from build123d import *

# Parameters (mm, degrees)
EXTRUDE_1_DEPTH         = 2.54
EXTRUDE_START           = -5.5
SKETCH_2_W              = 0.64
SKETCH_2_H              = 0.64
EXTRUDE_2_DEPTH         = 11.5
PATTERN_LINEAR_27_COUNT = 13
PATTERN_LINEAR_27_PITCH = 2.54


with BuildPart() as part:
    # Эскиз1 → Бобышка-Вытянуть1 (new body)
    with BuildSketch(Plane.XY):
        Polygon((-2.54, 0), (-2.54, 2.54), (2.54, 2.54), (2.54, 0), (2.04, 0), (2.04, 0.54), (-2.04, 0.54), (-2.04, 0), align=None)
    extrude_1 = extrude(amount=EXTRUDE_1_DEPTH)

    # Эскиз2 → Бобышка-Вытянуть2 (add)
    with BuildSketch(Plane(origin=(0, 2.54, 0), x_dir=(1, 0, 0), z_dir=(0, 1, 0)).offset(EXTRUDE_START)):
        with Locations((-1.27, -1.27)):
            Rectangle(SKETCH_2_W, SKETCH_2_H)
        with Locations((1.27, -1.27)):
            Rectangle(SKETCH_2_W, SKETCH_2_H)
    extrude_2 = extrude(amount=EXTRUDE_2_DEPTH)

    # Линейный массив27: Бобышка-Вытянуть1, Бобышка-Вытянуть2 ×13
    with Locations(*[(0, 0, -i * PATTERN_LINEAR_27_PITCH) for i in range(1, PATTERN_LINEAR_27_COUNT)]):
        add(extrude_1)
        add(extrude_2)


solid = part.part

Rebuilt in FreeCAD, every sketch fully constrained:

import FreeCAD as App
import Part
import Sketcher
from FreeCAD import Vector

doc = App.newDocument("Part")
body = doc.addObject("PartDesign::Body", "Body")

# Sketch on XY plane
sketch1 = doc.addObject("Sketcher::SketchObject", "Sketch")
body.addObject(sketch1)
sketch1.AttachmentSupport = (doc.XY_Plane, [""])
sketch1.MapMode = "FlatFace"
sketch1.addGeometry([
    Part.LineSegment(Vector(-2.5, 2.5, 0), Vector(-2.5, 0, 0)),  # 0
    Part.LineSegment(Vector(-2.5, 0, 0), Vector(-2, 0, 0)),  # 1
    Part.LineSegment(Vector(-2, 0, 0), Vector(-2, 0.5, 0)),  # 2
    Part.LineSegment(Vector(-2, 0.5, 0), Vector(2, 0.5, 0)),  # 3
    Part.LineSegment(Vector(2, 0.5, 0), Vector(2, 0, 0)),  # 4
    Part.LineSegment(Vector(2, 0, 0), Vector(2.5, 0, 0)),  # 5
    Part.LineSegment(Vector(2.5, 0, 0), Vector(2.5, 2.5, 0)),  # 6
    Part.LineSegment(Vector(2.5, 2.5, 0), Vector(-2.5, 2.5, 0)),  # 7
], False)
sketch1.addConstraint([
    Sketcher.Constraint("Coincident", 0, 2, 1, 1),
    Sketcher.Constraint("Coincident", 1, 2, 2, 1),
    Sketcher.Constraint("Coincident", 2, 2, 3, 1),
    Sketcher.Constraint("Coincident", 3, 2, 4, 1),
    Sketcher.Constraint("Coincident", 4, 2, 5, 1),
    Sketcher.Constraint("Coincident", 5, 2, 6, 1),
    Sketcher.Constraint("Coincident", 6, 2, 7, 1),
    Sketcher.Constraint("Coincident", 7, 2, 0, 1),
    Sketcher.Constraint("Vertical", 0),
    Sketcher.Constraint("Horizontal", 1),
    Sketcher.Constraint("Vertical", 2),
    Sketcher.Constraint("Horizontal", 3),
    Sketcher.Constraint("Vertical", 4),
    Sketcher.Constraint("Horizontal", 5),
    Sketcher.Constraint("Vertical", 6),
    Sketcher.Constraint("Horizontal", 7),
    Sketcher.Constraint("Symmetric", 1, 2, 4, 2, -1, 1),
    Sketcher.Constraint("Symmetric", 0, 2, 5, 2, -2),
    Sketcher.Constraint("DistanceX", 1, 1, 1, 2, 0.5),
    Sketcher.Constraint("DistanceY", 3, 2, 6, 2, 2.0),
    Sketcher.Constraint("DistanceX", 3, 1, 3, 2, 4.08),
    Sketcher.Constraint("DistanceY", 0, 2, 0, 1, 2.54),
])
pad1 = doc.addObject("PartDesign::Pad", "Pad")
body.addObject(pad1)
pad1.Profile = sketch1
pad1.Length = 2.54

# Sketch on XZ plane
sketch2 = doc.addObject("Sketcher::SketchObject", "Sketch001")
body.addObject(sketch2)
sketch2.AttachmentSupport = (doc.XZ_Plane, [""])
sketch2.MapMode = "FlatFace"
sketch2.AttachmentOffset = App.Placement(Vector(0, 0, 2.96), App.Rotation())
sketch2.addGeometry([
    Part.LineSegment(Vector(-1.6, 0.9, 0), Vector(-1.6, 1.6, 0)),  # 0
    Part.LineSegment(Vector(-1.6, 1.6, 0), Vector(-0.9, 1.6, 0)),  # 1
    Part.LineSegment(Vector(-0.9, 1.6, 0), Vector(-0.9, 0.9, 0)),  # 2
    Part.LineSegment(Vector(-0.9, 0.9, 0), Vector(-1.6, 0.9, 0)),  # 3
    Part.LineSegment(Vector(0.9, 0.9, 0), Vector(0.9, 1.6, 0)),  # 4
    Part.LineSegment(Vector(0.9, 1.6, 0), Vector(1.6, 1.6, 0)),  # 5
    Part.LineSegment(Vector(1.6, 1.6, 0), Vector(1.6, 0.9, 0)),  # 6
    Part.LineSegment(Vector(1.6, 0.9, 0), Vector(0.9, 0.9, 0)),  # 7
], False)
sketch2.addConstraint([
    Sketcher.Constraint("Coincident", 0, 2, 1, 1),
    Sketcher.Constraint("Coincident", 1, 2, 2, 1),
    Sketcher.Constraint("Coincident", 2, 2, 3, 1),
    Sketcher.Constraint("Coincident", 3, 2, 0, 1),
    Sketcher.Constraint("Coincident", 4, 2, 5, 1),
    Sketcher.Constraint("Coincident", 5, 2, 6, 1),
    Sketcher.Constraint("Coincident", 6, 2, 7, 1),
    Sketcher.Constraint("Coincident", 7, 2, 4, 1),
    Sketcher.Constraint("Vertical", 0),
    Sketcher.Constraint("Horizontal", 1),
    Sketcher.Constraint("Vertical", 2),
    Sketcher.Constraint("Horizontal", 3),
    Sketcher.Constraint("Vertical", 4),
    Sketcher.Constraint("Horizontal", 5),
    Sketcher.Constraint("Vertical", 6),
    Sketcher.Constraint("Horizontal", 7),
    Sketcher.Constraint("Symmetric", 1, 2, 4, 2, -2),
    Sketcher.Constraint("Symmetric", 3, 2, 6, 2, -2),
    Sketcher.Constraint("Equal", 7, 0),
    Sketcher.Constraint("DistanceX", 1, 1, 1, 2, 0.64),
    Sketcher.Constraint("DistanceX", 1, 2, 4, 2, 1.9),
    Sketcher.Constraint("DistanceY", -1, 1, 0, 2, 1.59),
])
pad2 = doc.addObject("PartDesign::Pad", "Pad001")
body.addObject(pad2)
pad2.Profile = sketch2
pad2.Length = 11.5
pad2.Reversed = True
doc.recompute()

linearpattern = doc.addObject("PartDesign::LinearPattern", "LinearPattern")
body.addObject(linearpattern)
linearpattern.Originals = [pad1, pad2]
linearpattern.Direction = (doc.Z_Axis, [""])
linearpattern.Mode = "offset"
linearpattern.Offset = 2.54
linearpattern.Occurrences = 13
linearpattern.Reversed = True
body.Tip = linearpattern

doc.recompute()
